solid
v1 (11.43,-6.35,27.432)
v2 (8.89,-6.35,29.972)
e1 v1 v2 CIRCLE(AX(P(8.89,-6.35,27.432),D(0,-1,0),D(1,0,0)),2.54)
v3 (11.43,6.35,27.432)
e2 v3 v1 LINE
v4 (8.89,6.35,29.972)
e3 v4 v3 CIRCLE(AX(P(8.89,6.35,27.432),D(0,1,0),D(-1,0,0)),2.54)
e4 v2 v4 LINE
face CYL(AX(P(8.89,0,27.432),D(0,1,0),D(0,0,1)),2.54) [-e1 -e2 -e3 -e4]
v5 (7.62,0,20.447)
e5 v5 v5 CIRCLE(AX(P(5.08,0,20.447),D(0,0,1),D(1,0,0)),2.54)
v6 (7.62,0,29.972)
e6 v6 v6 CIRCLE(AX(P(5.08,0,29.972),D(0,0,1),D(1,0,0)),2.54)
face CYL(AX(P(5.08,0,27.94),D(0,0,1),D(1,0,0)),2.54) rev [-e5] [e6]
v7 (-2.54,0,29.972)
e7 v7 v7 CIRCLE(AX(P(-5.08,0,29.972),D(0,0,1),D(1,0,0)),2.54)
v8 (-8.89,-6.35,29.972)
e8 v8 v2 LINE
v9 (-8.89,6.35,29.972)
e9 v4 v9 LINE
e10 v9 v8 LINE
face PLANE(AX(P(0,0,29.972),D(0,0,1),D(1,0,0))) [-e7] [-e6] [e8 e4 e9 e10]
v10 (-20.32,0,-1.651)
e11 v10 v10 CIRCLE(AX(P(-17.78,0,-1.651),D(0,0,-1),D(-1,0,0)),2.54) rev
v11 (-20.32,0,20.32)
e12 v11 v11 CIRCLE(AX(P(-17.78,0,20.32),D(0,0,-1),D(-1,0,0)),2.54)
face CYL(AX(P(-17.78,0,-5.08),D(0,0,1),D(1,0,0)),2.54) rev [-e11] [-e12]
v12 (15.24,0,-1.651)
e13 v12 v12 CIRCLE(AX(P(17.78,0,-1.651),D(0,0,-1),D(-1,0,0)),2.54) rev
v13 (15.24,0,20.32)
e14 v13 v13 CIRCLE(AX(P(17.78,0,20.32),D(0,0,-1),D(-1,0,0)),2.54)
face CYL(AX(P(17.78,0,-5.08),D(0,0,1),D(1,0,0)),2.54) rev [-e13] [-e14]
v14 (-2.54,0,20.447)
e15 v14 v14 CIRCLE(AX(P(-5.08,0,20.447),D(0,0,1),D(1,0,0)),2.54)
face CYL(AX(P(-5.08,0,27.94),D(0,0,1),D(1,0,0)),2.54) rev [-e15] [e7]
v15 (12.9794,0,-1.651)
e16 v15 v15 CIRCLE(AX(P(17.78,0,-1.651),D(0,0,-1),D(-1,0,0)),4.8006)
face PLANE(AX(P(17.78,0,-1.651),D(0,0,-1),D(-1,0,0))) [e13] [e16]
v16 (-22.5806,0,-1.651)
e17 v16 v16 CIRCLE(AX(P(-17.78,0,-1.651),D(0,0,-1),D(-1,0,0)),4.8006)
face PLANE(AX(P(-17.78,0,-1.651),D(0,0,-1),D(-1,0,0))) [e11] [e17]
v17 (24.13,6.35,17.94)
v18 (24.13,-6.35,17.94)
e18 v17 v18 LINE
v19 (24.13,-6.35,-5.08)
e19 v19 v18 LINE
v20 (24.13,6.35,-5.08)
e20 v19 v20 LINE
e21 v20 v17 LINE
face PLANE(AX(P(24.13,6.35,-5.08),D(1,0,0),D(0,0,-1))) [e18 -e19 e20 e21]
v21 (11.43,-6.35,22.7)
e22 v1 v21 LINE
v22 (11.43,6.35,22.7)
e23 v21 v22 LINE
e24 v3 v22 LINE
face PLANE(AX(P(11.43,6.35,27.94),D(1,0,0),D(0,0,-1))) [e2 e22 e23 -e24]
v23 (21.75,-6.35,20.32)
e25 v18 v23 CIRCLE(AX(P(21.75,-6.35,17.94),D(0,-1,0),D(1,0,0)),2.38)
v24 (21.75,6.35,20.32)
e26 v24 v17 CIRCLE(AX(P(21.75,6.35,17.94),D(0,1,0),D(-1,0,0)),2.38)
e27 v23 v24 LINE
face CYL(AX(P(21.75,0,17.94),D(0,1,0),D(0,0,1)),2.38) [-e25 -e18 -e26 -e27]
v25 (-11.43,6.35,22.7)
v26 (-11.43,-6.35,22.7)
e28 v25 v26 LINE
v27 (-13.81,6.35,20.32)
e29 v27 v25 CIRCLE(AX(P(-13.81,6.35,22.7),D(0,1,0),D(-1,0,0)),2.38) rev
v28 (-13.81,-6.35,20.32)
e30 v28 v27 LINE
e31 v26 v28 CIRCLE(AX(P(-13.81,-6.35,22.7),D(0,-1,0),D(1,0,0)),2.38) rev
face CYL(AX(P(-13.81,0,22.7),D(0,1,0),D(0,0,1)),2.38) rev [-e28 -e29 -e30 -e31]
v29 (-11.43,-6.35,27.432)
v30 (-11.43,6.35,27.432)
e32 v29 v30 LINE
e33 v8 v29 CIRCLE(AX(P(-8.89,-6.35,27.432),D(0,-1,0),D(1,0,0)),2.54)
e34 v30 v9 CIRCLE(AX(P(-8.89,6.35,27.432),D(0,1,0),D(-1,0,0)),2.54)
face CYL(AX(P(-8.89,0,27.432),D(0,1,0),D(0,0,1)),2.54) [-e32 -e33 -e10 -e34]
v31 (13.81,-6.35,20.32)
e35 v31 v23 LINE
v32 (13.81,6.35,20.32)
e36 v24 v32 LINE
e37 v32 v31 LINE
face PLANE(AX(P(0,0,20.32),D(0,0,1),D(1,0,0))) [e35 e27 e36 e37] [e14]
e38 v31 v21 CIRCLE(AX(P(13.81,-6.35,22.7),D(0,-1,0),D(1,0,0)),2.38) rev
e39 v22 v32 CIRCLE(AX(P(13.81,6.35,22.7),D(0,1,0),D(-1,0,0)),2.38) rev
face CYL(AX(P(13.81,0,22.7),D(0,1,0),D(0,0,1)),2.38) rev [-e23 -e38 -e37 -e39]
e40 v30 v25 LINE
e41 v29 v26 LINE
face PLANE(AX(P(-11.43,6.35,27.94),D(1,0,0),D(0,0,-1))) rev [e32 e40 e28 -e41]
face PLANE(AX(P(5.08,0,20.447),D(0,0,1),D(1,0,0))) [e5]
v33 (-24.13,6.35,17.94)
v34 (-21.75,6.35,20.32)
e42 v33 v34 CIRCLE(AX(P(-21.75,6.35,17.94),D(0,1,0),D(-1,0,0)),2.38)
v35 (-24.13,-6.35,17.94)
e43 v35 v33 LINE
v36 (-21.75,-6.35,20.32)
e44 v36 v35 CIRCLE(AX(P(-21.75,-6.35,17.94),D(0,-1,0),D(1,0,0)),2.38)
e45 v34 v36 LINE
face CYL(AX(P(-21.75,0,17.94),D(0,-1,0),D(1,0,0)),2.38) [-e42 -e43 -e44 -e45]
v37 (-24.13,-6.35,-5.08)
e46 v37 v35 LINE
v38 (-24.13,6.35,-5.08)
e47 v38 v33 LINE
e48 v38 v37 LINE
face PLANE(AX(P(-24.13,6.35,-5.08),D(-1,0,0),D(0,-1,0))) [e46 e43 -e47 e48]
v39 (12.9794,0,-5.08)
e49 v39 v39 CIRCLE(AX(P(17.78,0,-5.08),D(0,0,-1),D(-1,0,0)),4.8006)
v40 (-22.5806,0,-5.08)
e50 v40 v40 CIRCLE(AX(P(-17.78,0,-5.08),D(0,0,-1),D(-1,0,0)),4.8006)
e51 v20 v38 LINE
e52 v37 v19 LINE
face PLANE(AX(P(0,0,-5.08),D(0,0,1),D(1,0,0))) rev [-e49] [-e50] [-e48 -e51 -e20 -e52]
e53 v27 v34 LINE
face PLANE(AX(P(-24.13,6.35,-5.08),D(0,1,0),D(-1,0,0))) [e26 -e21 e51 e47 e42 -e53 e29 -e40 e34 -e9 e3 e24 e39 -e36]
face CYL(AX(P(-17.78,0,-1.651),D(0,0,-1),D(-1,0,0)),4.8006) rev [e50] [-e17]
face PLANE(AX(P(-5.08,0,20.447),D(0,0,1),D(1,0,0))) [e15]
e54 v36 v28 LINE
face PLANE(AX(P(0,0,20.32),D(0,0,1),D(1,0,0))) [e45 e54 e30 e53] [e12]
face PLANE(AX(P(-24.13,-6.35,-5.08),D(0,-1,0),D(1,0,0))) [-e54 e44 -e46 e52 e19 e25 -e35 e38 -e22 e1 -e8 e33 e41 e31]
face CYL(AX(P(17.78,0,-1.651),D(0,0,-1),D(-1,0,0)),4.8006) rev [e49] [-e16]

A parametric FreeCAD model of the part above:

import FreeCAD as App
import Part
import Sketcher
Q = App.Units.Quantity


def edges_at(feature, points):
    """Names of the edges that pass closest to the given points."""
    edges = feature.Shape.Edges
    near = lambda p: min(range(len(edges)), key=lambda i: edges[i].distToShape(Part.Vertex(*p))[0])
    return sorted({f"Edge{near(p) + 1}" for p in points})


def add_polygon(sketch, points):
    """Adds a closed chain of lines whose ends are joined by coincident constraints."""
    first, n = sketch.GeometryCount, len(points)
    for a, b in zip(points, points[1:] + points[:1]):
        sketch.addGeometry(Part.LineSegment(App.Vector(*a, 0), App.Vector(*b, 0)), False)
    for i in range(n):
        sketch.addConstraint(Sketcher.Constraint("Coincident", first + i, 2, first + (i + 1) % n, 1))

doc = App.newDocument("Part")
body = doc.addObject("PartDesign::Body", "Body")

sketch1 = body.newObject("Sketcher::SketchObject", "Sketch")
sketch1.AttachmentSupport = (doc.getObject("XY_Plane"), [""])
sketch1.MapMode = "FlatFace"
add_polygon(sketch1, [(-24.1, 6.3), (-24.1, -6.3), (24.1, -6.3), (24.1, 6.3)])
sketch1.addGeometry(Part.Circle(App.Vector(-17.8, 0, 0), App.Vector(0, 0, 1), 2.5), False)
sketch1.addConstraint([
    Sketcher.Constraint("Vertical", 0),
    Sketcher.Constraint("Horizontal", 1),
    Sketcher.Constraint("Vertical", 2),
    Sketcher.Constraint("Horizontal", 3),
    Sketcher.Constraint("Symmetric", 0, 2, 2, 2, -1, 1),
    Sketcher.Constraint("PointOnObject", 4, 3, -1),
    Sketcher.Constraint("Diameter", 4, Q("0.2 in")),
    Sketcher.Constraint("DistanceX", 1, 1, 1, 2, Q("1.9 in")),
    Sketcher.Constraint("DistanceY", 0, 2, 0, 1, Q("0.5 in")),
    Sketcher.Constraint("DistanceX", 4, 3, -1, 1, Q("0.7 in")),
])
pad1 = body.newObject("PartDesign::Pad", "Pad")
pad1.Profile = sketch1
pad1.Length = Q("0.2 in")
pad1.Reversed = True

sketch2 = body.newObject("Sketcher::SketchObject", "Sketch001")
sketch2.AttachmentSupport = (doc.getObject("XY_Plane"), [""])
sketch2.MapMode = "FlatFace"
sketch2.addGeometry(Part.Circle(App.Vector(17.8, 0, 0), App.Vector(0, 0, 1), 2.5), False)
sketch2.addConstraint([
    Sketcher.Constraint("PointOnObject", 0, 3, -1),
    Sketcher.Constraint("Diameter", 0, Q("0.2 in")),
    Sketcher.Constraint("DistanceX", -1, 1, 0, 3, Q("0.7 in")),
])
pocket1 = body.newObject("PartDesign::Pocket", "Pocket")
pocket1.Profile = sketch2
pocket1.Type = "ThroughAll"

sketch3 = body.newObject("Sketcher::SketchObject", "Sketch002")
sketch3.AttachmentSupport = (doc.getObject("XY_Plane"), [""])
sketch3.MapMode = "FlatFace"
add_polygon(sketch3, [(-11.4, 6.3), (-11.4, -6.3), (-7.6, -6.3), (-7.6, 6.3)])
sketch3.addConstraint([
    Sketcher.Constraint("Vertical", 0),
    Sketcher.Constraint("Horizontal", 1),
    Sketcher.Constraint("Vertical", 2),
    Sketcher.Constraint("Horizontal", 3),
    Sketcher.Constraint("DistanceY", 0, 2, 0, 1, Q("0.5 in")),
    Sketcher.Constraint("DistanceX", 1, 1, 1, 2, Q("0.15 in")),
    Sketcher.Constraint("DistanceX", 1, 2, -1, 1, Q("0.3 in")),
    Sketcher.Constraint("DistanceY", 0, 2, -1, 1, Q("0.25 in")),
])
pad2 = body.newObject("PartDesign::Pad", "Pad001")
pad2.Profile = sketch3
pad2.Length = Q("1.1 in")

sketch4 = body.newObject("Sketcher::SketchObject", "Sketch003")
sketch4.AttachmentSupport = (doc.getObject("XY_Plane"), [""])
sketch4.MapMode = "FlatFace"
add_polygon(sketch4, [(7.6, 6.3), (7.6, -6.3), (11.4, -6.3), (11.4, 6.3)])
sketch4.addConstraint([
    Sketcher.Constraint("Vertical", 0),
    Sketcher.Constraint("Horizontal", 1),
    Sketcher.Constraint("Vertical", 2),
    Sketcher.Constraint("Horizontal", 3),
    Sketcher.Constraint("DistanceY", 0, 2, 0, 1, Q("0.5 in")),
    Sketcher.Constraint("DistanceX", 1, 1, 1, 2, Q("0.15 in")),
    Sketcher.Constraint("DistanceX", -1, 1, 0, 2, Q("0.3 in")),
    Sketcher.Constraint("DistanceY", 0, 2, -1, 1, Q("0.25 in")),
])
pad3 = body.newObject("PartDesign::Pad", "Pad002")
pad3.Profile = sketch4
pad3.Length = Q("1.1 in")

sketch5 = body.newObject("Sketcher::SketchObject", "Sketch004")
sketch5.AttachmentSupport = (doc.getObject("XY_Plane"), [""])
sketch5.MapMode = "FlatFace"
sketch5.AttachmentOffset = App.Placement(App.Vector(0, 0, 1.1 * 25.4), App.Rotation())
add_polygon(sketch5, [(-11, 6), (-11, -6), (11, -6), (11, 6)])
sketch5.addConstraint([
    Sketcher.Constraint("Vertical", 0),
    Sketcher.Constraint("Horizontal", 1),
    Sketcher.Constraint("Vertical", 2),
    Sketcher.Constraint("Horizontal", 3),
    Sketcher.Constraint("Symmetric", 0, 2, 2, 2, -1, 1),
    Sketcher.Constraint("DistanceX", 1, 1, 1, 2, Q("0.9 in")),
    Sketcher.Constraint("DistanceY", 0, 2, 0, 1, Q("0.5 in")),
])
pad4 = body.newObject("PartDesign::Pad", "Pad003")
pad4.Profile = sketch5
pad4.Length = Q("0.08 in")

sketch6 = body.newObject("Sketcher::SketchObject", "Sketch005")
sketch6.AttachmentSupport = (doc.getObject("XY_Plane"), [""])
sketch6.MapMode = "FlatFace"
sketch6.AttachmentOffset = App.Placement(App.Vector(0, 0, 1.18 * 25.4), App.Rotation())
sketch6.addGeometry(Part.Circle(App.Vector(-5.1, 0, 0), App.Vector(0, 0, 1), 2.5), False)
sketch6.addConstraint([
    Sketcher.Constraint("PointOnObject", 0, 3, -1),
    Sketcher.Constraint("Diameter", 0, Q("0.2 in")),
    Sketcher.Constraint("DistanceX", 0, 3, -1, 1, Q("0.2 in")),
])
pocket2 = body.newObject("PartDesign::Pocket", "Pocket001")
pocket2.Profile = sketch6
pocket2.Length = Q("0.08 in")

sketch7 = body.newObject("Sketcher::SketchObject", "Sketch006")
sketch7.AttachmentSupport = (doc.getObject("XY_Plane"), [""])
sketch7.MapMode = "FlatFace"
sketch7.AttachmentOffset = App.Placement(App.Vector(0, 0, 1.18 * 25.4), App.Rotation())
sketch7.addGeometry(Part.Circle(App.Vector(5.1, 0, 0), App.Vector(0, 0, 1), 2.5), False)
sketch7.addConstraint([
    Sketcher.Constraint("PointOnObject", 0, 3, -1),
    Sketcher.Constraint("Diameter", 0, Q("0.2 in")),
    Sketcher.Constraint("DistanceX", -1, 1, 0, 3, Q("0.2 in")),
])
pocket3 = body.newObject("PartDesign::Pocket", "Pocket002")
pocket3.Profile = sketch7
pocket3.Length = Q("0.08 in")
doc.recompute()

fillet = body.newObject("PartDesign::Fillet", "Fillet")
fillet.Base = (pocket3, edges_at(pocket3, [(-11.43, 0, 29.972), (11.43, 0, 29.972)]))
fillet.Radius = Q("0.1 in")

sketch8 = body.newObject("Sketcher::SketchObject", "Sketch007")
sketch8.AttachmentSupport = (doc.getObject("XY_Plane"), [""])
sketch8.MapMode = "FlatFace"
add_polygon(sketch8, [(-8, 6), (-8, -6), (8, -6), (8, 6)])
sketch8.addConstraint([
    Sketcher.Constraint("Vertical", 0),
    Sketcher.Constraint("Horizontal", 1),
    Sketcher.Constraint("Vertical", 2),
    Sketcher.Constraint("Horizontal", 3),
    Sketcher.Constraint("Symmetric", 0, 2, 2, 2, -1, 1),
    Sketcher.Constraint("DistanceX", 1, 1, 1, 2, Q("0.6 in")),
    Sketcher.Constraint("DistanceY", 0, 2, 0, 1, Q("0.5 in")),
])
pad5 = body.newObject("PartDesign::Pad", "Pad004")
pad5.Profile = sketch8
pad5.Length = Q("1.1 in")

sketch9 = body.newObject("Sketcher::SketchObject", "Sketch008")
sketch9.AttachmentSupport = (doc.getObject("XY_Plane"), [""])
sketch9.MapMode = "FlatFace"
sketch9.AttachmentOffset = App.Placement(App.Vector(0, 0, 1.1 * 25.4), App.Rotation())
sketch9.addGeometry(Part.Circle(App.Vector(-5.1, 0, 0), App.Vector(0, 0, 1), 2.5), False)
sketch9.addConstraint([
    Sketcher.Constraint("PointOnObject", 0, 3, -1),
    Sketcher.Constraint("Diameter", 0, Q("0.2 in")),
    Sketcher.Constraint("DistanceX", 0, 3, -1, 1, Q("0.2 in")),
])
pocket4 = body.newObject("PartDesign::Pocket", "Pocket003")
pocket4.Profile = sketch9
pocket4.Length = Q("0.295 in")

sketch10 = body.newObject("Sketcher::SketchObject", "Sketch009")
sketch10.AttachmentSupport = (doc.getObject("XY_Plane"), [""])
sketch10.MapMode = "FlatFace"
sketch10.AttachmentOffset = App.Placement(App.Vector(0, 0, 1.1 * 25.4), App.Rotation())
sketch10.addGeometry(Part.Circle(App.Vector(5.1, 0, 0), App.Vector(0, 0, 1), 2.5), False)
sketch10.addConstraint([
    Sketcher.Constraint("PointOnObject", 0, 3, -1),
    Sketcher.Constraint("Diameter", 0, Q("0.2 in")),
    Sketcher.Constraint("DistanceX", -1, 1, 0, 3, Q("0.2 in")),
])
pocket5 = body.newObject("PartDesign::Pocket", "Pocket004")
pocket5.Profile = sketch10
pocket5.Length = Q("0.295 in")

sketch11 = body.newObject("Sketcher::SketchObject", "Sketch010")
sketch11.AttachmentSupport = (doc.getObject("XY_Plane"), [""])
sketch11.MapMode = "FlatFace"
sketch11.AttachmentOffset = App.Placement(App.Vector(0, 0, -0.2 * 25.4), App.Rotation())
sketch11.addGeometry(Part.Circle(App.Vector(-17.8, 0, 0), App.Vector(0, 0, 1), 4.8), False)
sketch11.addConstraint([
    Sketcher.Constraint("PointOnObject", 0, 3, -1),
    Sketcher.Constraint("Diameter", 0, Q("0.378 in")),
    Sketcher.Constraint("DistanceX", 0, 3, -1, 1, Q("0.7 in")),
])
pocket6 = body.newObject("PartDesign::Pocket", "Pocket005")
pocket6.Profile = sketch11
pocket6.Length = Q("0.135 in")
pocket6.Reversed = True

sketch12 = body.newObject("Sketcher::SketchObject", "Sketch011")
sketch12.AttachmentSupport = (doc.getObject("XY_Plane"), [""])
sketch12.MapMode = "FlatFace"
add_polygon(sketch12, [(-24, 6), (-24, -6), (-11, -6), (-11, 6)])
sketch12.addConstraint([
    Sketcher.Constraint("Vertical", 0),
    Sketcher.Constraint("Horizontal", 1),
    Sketcher.Constraint("Vertical", 2),
    Sketcher.Constraint("Horizontal", 3),
    Sketcher.Constraint("Equal", 3, 0),
    Sketcher.Constraint("DistanceX", 1, 1, 1, 2, Q("0.5 in")),
    Sketcher.Constraint("DistanceX", 0, 2, -1, 1, Q("0.95 in")),
    Sketcher.Constraint("DistanceY", 0, 2, -1, 1, Q("0.25 in")),
])
pad6 = body.newObject("PartDesign::Pad", "Pad005")
pad6.Profile = sketch12
pad6.Length = Q("0.8 in")

sketch13 = body.newObject("Sketcher::SketchObject", "Sketch012")
sketch13.AttachmentSupport = (doc.getObject("XY_Plane"), [""])
sketch13.MapMode = "FlatFace"
sketch13.addGeometry(Part.Circle(App.Vector(-17.8, 0, 0), App.Vector(0, 0, 1), 2.5), False)
sketch13.addConstraint([
    Sketcher.Constraint("PointOnObject", 0, 3, -1),
    Sketcher.Constraint("Diameter", 0, Q("0.2 in")),
    Sketcher.Constraint("DistanceX", 0, 3, -1, 1, Q("0.7 in")),
])
pocket7 = body.newObject("PartDesign::Pocket", "Pocket006")
pocket7.Profile = sketch13
pocket7.Length = Q("0.8 in")
pocket7.Reversed = True

sketch14 = body.newObject("Sketcher::SketchObject", "Sketch013")
sketch14.AttachmentSupport = (doc.getObject("XY_Plane"), [""])
sketch14.MapMode = "FlatFace"
add_polygon(sketch14, [(11, 6), (11, -6), (24, -6), (24, 6)])
sketch14.addConstraint([
    Sketcher.Constraint("Vertical", 0),
    Sketcher.Constraint("Horizontal", 1),
    Sketcher.Constraint("Vertical", 2),
    Sketcher.Constraint("Horizontal", 3),
    Sketcher.Constraint("Equal", 3, 0),
    Sketcher.Constraint("DistanceX", 1, 1, 1, 2, Q("0.5 in")),
    Sketcher.Constraint("DistanceX", -1, 1, 0, 2, Q("0.45 in")),
    Sketcher.Constraint("DistanceY", 0, 2, -1, 1, Q("0.25 in")),
])
pad7 = body.newObject("PartDesign::Pad", "Pad006")
pad7.Profile = sketch14
pad7.Length = Q("0.8 in")

sketch15 = body.newObject("Sketcher::SketchObject", "Sketch014")
sketch15.AttachmentSupport = (doc.getObject("XY_Plane"), [""])
sketch15.MapMode = "FlatFace"
sketch15.AttachmentOffset = App.Placement(App.Vector(0, 0, -0.2 * 25.4), App.Rotation())
sketch15.addGeometry(Part.Circle(App.Vector(17.8, 0, 0), App.Vector(0, 0, 1), 2.5), False)
sketch15.addConstraint([
    Sketcher.Constraint("PointOnObject", 0, 3, -1),
    Sketcher.Constraint("Diameter", 0, Q("0.2 in")),
    Sketcher.Constraint("DistanceX", -1, 1, 0, 3, Q("0.7 in")),
])
pocket8 = body.newObject("PartDesign::Pocket", "Pocket007")
pocket8.Profile = sketch15
pocket8.Length = Q("1 in")
pocket8.Reversed = True

sketch16 = body.newObject("Sketcher::SketchObject", "Sketch015")
sketch16.AttachmentSupport = (doc.getObject("XY_Plane"), [""])
sketch16.MapMode = "FlatFace"
sketch16.AttachmentOffset = App.Placement(App.Vector(0, 0, -0.2 * 25.4), App.Rotation())
sketch16.addGeometry(Part.Circle(App.Vector(17.8, 0, 0), App.Vector(0, 0, 1), 4.8), False)
sketch16.addConstraint([
    Sketcher.Constraint("PointOnObject", 0, 3, -1),
    Sketcher.Constraint("Diameter", 0, Q("0.378 in")),
    Sketcher.Constraint("DistanceX", -1, 1, 0, 3, Q("0.7 in")),
])
pocket9 = body.newObject("PartDesign::Pocket", "Pocket008")
pocket9.Profile = sketch16
pocket9.Length = Q("0.135 in")
pocket9.Reversed = True
doc.recompute()

fillet2 = body.newObject("PartDesign::Fillet", "Fillet001")
fillet2.Base = (pocket9, edges_at(pocket9, [(11.43, 0, 20.32)]))
fillet2.Radius = 2.38
doc.recompute()

fillet3 = body.newObject("PartDesign::Fillet", "Fillet002")
fillet3.Base = (fillet2, edges_at(fillet2, [(-11.43, 0, 20.32)]))
fillet3.Radius = 2.38
doc.recompute()

fillet4 = body.newObject("PartDesign::Fillet", "Fillet003")
fillet4.Base = (fillet3, edges_at(fillet3, [(-24.13, 0, 20.32), (24.13, 0, 20.32)]))
fillet4.Radius = 2.38

doc.recompute()
